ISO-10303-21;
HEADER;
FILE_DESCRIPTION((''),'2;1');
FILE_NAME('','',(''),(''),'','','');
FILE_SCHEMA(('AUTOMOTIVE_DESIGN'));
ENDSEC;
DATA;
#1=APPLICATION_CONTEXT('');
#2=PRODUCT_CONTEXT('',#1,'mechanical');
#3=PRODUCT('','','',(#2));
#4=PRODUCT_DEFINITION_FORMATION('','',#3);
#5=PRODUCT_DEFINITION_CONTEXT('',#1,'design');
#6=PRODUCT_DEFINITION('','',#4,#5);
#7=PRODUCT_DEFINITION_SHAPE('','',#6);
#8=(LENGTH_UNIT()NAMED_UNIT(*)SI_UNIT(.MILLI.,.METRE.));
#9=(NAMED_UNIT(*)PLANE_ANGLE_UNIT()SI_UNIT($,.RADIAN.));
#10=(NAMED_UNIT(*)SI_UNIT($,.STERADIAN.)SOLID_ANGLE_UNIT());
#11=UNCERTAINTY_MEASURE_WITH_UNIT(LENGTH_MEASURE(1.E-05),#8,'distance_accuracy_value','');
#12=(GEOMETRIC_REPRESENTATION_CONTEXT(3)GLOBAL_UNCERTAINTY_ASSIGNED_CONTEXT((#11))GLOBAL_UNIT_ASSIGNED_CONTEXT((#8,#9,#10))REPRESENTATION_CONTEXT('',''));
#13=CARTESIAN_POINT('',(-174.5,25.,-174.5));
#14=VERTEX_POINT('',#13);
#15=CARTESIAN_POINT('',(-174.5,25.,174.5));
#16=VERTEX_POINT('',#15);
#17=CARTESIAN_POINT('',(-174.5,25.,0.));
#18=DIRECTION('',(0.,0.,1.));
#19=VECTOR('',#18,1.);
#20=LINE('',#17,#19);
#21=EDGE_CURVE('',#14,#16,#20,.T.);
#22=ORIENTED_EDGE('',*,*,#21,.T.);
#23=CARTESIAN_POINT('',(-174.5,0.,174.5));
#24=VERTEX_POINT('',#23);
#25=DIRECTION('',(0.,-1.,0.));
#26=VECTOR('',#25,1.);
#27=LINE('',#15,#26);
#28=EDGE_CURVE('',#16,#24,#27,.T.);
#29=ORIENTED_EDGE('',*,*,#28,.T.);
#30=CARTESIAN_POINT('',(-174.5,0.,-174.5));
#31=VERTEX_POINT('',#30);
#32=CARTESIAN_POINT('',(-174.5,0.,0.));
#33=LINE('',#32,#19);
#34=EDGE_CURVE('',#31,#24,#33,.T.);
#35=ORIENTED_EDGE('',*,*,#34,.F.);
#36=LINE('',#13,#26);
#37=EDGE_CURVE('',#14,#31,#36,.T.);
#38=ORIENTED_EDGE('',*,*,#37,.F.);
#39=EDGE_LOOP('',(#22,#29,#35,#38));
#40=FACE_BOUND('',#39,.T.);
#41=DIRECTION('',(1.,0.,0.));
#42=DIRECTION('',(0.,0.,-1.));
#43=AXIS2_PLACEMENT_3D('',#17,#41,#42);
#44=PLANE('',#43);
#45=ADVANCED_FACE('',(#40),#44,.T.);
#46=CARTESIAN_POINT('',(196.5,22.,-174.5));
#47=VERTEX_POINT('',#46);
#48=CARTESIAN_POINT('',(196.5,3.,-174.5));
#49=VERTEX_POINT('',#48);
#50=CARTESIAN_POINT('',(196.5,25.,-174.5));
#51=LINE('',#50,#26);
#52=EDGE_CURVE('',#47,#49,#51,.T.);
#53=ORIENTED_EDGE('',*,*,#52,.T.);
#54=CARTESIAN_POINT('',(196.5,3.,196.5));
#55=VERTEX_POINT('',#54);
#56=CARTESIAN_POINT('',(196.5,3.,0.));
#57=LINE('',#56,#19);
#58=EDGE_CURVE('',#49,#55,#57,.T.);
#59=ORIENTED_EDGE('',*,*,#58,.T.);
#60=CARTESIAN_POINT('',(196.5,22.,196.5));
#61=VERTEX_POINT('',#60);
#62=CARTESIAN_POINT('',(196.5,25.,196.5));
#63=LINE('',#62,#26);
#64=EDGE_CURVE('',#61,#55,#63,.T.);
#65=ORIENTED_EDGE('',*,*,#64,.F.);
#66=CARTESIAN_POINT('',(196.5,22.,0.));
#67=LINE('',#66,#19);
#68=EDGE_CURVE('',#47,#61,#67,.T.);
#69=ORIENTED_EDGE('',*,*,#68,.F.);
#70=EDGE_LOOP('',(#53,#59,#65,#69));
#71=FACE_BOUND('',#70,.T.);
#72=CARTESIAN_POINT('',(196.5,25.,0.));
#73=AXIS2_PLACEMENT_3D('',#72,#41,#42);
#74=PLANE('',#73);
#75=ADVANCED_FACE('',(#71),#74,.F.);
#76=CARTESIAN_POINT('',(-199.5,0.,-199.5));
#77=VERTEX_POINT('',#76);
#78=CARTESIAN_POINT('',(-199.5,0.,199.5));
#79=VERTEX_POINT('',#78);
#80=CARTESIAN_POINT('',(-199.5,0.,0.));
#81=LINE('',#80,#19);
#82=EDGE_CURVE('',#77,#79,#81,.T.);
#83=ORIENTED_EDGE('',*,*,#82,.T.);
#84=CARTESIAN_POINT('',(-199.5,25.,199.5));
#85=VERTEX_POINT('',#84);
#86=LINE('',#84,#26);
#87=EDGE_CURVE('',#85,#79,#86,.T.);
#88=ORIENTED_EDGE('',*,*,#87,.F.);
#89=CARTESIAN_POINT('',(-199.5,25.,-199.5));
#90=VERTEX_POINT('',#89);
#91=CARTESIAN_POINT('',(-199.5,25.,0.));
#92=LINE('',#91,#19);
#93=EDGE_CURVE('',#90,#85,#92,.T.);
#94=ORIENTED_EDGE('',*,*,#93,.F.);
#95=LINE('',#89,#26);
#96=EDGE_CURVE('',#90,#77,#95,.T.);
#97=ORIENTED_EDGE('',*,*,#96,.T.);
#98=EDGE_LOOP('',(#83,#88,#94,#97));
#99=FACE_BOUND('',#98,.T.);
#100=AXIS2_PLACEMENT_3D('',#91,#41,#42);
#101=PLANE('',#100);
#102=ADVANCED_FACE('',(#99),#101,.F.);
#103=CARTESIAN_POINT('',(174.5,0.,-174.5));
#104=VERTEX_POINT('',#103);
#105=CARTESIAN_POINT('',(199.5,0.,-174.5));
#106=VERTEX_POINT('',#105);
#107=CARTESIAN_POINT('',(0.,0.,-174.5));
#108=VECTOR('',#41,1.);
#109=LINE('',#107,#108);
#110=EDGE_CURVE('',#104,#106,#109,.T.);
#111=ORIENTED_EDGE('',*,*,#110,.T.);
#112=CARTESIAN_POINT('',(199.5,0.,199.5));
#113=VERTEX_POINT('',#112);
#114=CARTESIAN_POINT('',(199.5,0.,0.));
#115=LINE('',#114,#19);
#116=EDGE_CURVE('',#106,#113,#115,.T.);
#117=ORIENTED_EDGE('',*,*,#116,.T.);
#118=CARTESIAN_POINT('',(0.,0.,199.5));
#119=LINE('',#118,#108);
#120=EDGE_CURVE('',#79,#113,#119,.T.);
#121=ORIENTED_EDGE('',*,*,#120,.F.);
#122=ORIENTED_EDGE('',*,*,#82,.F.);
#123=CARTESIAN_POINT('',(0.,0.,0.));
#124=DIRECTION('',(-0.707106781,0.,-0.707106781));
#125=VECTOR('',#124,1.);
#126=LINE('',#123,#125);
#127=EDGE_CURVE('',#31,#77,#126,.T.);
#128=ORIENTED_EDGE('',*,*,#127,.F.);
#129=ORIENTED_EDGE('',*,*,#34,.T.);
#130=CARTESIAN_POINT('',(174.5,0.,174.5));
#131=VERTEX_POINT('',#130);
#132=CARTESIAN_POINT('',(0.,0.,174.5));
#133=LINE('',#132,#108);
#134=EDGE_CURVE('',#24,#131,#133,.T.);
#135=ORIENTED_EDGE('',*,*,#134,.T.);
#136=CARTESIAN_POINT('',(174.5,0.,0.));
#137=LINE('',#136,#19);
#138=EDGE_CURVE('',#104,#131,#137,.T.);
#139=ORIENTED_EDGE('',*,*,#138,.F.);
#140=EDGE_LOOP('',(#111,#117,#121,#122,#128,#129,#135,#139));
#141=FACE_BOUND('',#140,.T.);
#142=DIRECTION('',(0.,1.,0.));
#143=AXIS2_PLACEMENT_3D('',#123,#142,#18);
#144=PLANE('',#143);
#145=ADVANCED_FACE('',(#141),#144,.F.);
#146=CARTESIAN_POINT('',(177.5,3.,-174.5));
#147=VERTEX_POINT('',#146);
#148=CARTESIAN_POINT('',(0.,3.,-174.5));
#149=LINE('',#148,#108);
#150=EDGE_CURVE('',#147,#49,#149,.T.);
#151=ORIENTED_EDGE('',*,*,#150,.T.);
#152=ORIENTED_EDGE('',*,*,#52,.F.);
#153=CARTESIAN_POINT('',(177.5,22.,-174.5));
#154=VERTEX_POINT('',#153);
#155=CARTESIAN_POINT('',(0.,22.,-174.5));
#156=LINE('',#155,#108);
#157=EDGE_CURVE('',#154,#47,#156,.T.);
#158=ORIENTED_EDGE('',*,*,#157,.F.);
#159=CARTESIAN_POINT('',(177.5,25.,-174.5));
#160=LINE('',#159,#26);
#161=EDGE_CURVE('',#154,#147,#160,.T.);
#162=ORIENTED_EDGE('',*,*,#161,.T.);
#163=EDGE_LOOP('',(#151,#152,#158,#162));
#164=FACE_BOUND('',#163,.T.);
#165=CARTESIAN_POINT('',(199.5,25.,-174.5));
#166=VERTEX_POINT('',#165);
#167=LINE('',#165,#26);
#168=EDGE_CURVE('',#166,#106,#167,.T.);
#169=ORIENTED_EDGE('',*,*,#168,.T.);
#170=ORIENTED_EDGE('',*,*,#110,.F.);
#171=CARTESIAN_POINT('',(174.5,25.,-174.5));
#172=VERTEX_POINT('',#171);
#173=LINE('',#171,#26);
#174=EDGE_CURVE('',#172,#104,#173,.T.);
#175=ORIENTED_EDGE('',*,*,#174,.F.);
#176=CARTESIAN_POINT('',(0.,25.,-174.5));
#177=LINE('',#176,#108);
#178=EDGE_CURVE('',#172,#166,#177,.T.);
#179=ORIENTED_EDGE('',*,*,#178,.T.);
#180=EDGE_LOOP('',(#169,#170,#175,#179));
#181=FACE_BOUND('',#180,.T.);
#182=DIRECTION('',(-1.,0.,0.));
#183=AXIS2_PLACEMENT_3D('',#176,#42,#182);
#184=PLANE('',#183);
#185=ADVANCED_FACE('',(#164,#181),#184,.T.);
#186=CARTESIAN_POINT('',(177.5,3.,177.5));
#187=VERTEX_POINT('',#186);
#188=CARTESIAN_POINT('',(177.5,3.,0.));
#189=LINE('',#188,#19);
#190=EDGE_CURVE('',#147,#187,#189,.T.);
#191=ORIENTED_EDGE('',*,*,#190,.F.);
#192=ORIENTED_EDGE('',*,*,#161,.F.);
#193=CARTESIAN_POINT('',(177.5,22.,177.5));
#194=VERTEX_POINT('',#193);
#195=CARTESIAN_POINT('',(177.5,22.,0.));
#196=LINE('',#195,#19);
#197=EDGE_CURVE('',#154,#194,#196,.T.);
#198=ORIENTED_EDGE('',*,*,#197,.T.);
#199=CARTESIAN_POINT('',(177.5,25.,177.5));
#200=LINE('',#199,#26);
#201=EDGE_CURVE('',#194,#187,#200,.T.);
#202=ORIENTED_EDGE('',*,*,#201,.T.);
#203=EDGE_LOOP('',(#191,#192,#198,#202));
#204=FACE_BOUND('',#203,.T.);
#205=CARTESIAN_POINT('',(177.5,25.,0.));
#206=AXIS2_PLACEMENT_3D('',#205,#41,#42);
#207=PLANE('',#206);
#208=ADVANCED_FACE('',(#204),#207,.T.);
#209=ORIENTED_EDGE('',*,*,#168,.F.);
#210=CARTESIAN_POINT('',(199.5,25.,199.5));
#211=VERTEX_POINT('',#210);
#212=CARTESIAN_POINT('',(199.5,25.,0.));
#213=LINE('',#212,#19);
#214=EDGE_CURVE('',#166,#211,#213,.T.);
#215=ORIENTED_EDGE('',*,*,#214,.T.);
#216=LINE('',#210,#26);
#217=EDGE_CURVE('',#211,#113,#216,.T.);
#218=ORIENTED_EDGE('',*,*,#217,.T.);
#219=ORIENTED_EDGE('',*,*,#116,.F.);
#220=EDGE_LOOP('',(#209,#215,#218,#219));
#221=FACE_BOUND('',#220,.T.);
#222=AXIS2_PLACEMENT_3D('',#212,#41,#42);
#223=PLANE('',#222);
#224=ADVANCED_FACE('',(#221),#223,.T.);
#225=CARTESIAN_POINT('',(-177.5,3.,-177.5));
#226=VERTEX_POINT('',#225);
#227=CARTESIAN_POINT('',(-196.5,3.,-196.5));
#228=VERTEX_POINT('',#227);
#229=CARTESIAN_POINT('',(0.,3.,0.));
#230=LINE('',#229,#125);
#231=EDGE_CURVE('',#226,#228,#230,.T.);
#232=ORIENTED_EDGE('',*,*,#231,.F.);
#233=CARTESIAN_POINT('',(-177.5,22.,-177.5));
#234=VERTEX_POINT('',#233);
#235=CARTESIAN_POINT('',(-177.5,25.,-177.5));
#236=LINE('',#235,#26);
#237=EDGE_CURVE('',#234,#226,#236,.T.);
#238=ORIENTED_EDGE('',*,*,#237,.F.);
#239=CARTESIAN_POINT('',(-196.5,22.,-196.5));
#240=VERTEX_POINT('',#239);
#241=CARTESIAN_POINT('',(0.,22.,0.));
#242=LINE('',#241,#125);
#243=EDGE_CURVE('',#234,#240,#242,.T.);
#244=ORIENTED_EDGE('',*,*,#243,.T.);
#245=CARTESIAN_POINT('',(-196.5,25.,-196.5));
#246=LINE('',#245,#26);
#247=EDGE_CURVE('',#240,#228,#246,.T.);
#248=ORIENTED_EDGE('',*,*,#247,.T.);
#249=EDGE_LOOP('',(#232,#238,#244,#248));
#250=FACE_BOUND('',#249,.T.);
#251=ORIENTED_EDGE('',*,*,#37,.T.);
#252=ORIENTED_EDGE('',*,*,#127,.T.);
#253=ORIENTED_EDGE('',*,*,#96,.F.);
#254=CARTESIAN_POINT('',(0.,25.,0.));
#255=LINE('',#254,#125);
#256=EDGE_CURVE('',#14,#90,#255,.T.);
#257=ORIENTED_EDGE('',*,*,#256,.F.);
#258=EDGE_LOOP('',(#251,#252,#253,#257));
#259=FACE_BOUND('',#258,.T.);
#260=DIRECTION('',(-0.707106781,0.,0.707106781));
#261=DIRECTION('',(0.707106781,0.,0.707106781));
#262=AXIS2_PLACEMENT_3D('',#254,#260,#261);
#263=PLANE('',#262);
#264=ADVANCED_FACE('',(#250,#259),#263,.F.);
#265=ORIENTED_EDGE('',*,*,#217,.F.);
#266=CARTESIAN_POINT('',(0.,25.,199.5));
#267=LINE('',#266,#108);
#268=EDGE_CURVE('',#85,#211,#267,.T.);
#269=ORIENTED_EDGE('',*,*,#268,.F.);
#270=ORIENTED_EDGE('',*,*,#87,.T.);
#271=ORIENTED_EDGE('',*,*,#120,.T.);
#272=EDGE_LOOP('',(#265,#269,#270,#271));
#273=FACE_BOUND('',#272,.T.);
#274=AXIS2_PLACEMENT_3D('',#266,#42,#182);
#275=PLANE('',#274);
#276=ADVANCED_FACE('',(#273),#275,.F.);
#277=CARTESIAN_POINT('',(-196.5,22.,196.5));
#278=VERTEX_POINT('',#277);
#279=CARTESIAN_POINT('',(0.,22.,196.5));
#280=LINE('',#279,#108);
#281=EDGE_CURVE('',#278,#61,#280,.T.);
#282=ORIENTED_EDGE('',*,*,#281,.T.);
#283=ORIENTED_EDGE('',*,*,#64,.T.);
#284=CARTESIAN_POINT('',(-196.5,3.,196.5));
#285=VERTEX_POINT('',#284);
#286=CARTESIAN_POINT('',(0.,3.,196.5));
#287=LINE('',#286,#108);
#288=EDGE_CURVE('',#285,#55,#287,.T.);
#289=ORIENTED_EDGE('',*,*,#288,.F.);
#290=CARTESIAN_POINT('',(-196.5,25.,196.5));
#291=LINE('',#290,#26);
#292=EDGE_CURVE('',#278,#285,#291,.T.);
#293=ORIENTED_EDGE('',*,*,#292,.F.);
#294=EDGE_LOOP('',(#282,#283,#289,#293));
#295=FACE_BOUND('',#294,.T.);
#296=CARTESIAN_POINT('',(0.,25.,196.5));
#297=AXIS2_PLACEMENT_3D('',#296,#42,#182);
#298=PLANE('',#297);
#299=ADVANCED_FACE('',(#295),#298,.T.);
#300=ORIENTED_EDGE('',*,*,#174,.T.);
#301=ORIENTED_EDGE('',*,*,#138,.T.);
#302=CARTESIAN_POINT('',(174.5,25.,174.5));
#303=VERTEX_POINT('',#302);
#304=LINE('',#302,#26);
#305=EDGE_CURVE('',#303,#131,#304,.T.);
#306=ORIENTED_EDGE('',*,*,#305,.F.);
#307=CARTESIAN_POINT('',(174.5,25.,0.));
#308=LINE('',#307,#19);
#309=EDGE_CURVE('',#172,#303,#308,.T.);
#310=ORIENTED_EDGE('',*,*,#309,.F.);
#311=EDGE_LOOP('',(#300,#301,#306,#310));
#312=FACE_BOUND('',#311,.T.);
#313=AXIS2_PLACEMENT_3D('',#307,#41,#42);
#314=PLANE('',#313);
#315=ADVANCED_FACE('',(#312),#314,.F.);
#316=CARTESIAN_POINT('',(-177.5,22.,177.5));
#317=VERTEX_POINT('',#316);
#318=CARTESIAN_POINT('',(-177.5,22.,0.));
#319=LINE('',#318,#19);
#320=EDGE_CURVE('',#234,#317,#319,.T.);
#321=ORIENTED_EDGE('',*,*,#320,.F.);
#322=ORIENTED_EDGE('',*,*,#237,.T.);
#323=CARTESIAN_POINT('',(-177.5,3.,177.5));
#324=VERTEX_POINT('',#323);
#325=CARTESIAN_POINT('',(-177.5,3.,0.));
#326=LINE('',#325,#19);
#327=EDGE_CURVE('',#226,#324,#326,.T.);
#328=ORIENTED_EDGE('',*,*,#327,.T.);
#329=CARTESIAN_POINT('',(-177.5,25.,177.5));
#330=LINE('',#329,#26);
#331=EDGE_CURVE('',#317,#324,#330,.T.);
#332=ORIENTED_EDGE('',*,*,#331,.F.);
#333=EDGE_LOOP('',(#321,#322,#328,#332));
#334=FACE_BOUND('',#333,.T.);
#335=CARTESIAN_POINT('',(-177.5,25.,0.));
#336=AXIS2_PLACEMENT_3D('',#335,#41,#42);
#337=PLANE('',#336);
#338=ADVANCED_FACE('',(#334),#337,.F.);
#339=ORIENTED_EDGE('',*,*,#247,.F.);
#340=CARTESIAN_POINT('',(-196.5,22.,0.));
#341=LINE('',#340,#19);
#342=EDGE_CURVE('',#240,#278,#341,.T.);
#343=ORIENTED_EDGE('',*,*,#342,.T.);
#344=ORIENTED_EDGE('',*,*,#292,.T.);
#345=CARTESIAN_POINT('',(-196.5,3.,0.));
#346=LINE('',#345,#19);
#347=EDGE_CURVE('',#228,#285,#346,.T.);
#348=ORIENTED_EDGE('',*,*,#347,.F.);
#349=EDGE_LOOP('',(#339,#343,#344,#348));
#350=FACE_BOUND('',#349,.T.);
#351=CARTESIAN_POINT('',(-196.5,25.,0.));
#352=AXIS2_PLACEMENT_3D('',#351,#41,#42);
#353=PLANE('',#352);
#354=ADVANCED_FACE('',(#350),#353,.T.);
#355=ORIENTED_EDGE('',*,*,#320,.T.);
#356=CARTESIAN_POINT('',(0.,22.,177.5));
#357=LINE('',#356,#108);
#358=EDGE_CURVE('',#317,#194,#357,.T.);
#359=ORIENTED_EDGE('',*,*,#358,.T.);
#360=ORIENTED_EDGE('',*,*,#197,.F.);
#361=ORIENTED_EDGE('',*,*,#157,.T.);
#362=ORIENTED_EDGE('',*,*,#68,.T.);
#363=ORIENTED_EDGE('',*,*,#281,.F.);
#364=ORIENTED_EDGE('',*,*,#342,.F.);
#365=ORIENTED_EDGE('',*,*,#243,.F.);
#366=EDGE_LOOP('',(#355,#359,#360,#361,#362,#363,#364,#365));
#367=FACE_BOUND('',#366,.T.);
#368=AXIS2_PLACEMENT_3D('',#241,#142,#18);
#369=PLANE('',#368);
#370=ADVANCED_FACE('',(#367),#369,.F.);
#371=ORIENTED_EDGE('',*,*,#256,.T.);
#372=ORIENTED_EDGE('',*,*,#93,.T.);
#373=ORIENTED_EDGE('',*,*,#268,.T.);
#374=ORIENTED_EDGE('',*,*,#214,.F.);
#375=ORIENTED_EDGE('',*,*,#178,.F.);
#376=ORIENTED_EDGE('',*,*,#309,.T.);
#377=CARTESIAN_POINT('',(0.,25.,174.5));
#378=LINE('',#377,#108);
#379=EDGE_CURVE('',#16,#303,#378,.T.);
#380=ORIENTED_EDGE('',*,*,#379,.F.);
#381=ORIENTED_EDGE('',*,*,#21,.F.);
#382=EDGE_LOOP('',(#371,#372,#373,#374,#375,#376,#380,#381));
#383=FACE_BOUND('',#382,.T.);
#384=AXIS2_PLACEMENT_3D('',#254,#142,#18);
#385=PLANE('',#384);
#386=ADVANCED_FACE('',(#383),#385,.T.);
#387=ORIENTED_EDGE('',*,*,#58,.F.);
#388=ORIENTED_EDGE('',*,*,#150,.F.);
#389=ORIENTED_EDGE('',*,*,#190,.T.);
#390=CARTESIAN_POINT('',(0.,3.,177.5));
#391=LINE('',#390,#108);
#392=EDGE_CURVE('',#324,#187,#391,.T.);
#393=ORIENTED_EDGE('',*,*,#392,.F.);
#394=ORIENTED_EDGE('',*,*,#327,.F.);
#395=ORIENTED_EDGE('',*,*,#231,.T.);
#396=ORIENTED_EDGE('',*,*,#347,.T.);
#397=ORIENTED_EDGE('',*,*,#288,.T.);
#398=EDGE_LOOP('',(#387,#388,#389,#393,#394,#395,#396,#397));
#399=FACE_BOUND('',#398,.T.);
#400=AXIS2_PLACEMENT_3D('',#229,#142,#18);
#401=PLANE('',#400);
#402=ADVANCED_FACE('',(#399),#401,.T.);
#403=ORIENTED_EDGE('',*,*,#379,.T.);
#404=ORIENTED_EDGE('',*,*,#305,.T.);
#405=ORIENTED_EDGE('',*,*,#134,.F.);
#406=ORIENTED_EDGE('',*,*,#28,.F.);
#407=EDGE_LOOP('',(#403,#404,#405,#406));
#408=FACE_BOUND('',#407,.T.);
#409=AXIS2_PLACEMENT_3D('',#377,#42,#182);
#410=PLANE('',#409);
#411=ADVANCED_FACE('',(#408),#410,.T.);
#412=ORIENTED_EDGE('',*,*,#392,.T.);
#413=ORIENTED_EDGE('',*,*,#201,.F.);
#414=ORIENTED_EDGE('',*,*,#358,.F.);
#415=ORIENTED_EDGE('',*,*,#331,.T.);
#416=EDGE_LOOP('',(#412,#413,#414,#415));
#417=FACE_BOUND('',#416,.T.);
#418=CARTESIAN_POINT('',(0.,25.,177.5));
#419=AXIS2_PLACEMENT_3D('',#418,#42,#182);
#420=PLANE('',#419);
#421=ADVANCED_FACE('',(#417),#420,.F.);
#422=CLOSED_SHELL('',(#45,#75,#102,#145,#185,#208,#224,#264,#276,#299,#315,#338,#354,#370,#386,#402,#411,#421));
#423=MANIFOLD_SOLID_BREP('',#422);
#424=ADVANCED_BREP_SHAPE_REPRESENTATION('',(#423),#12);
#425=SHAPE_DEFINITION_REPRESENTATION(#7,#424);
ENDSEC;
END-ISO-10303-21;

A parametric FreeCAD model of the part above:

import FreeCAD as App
import Part
import Sketcher
Q = App.Units.Quantity


def faces_at(feature, points):
    """Names of the faces that lie closest to the given points."""
    faces = feature.Shape.Faces
    near = lambda p: min(range(len(faces)), key=lambda i: faces[i].distToShape(Part.Vertex(*p))[0])
    return sorted({f"Face{near(p) + 1}" for p in points})

doc = App.newDocument("Part")
body = doc.addObject("PartDesign::Body", "Body")

sketch1 = body.newObject("Sketcher::SketchObject", "Sketch")
sketch1.AttachmentSupport = (doc.getObject("XZ_Plane"), [""])
sketch1.MapMode = "FlatFace"
sketch1.addGeometry(Part.LineSegment(App.Vector(-174, 174, 0), App.Vector(-174, -174, 0)), False)
sketch1.addGeometry(Part.LineSegment(App.Vector(-174, -174, 0), App.Vector(-200, -200, 0)), False)
sketch1.addGeometry(Part.LineSegment(App.Vector(-200, -200, 0), App.Vector(-200, 200, 0)), False)
sketch1.addGeometry(Part.LineSegment(App.Vector(-200, 200, 0), App.Vector(200, 200, 0)), False)
sketch1.addGeometry(Part.LineSegment(App.Vector(200, 200, 0), App.Vector(200, -174, 0)), False)
sketch1.addGeometry(Part.LineSegment(App.Vector(200, -174, 0), App.Vector(174, -174, 0)), False)
sketch1.addGeometry(Part.LineSegment(App.Vector(174, -174, 0), App.Vector(174, 174, 0)), False)
sketch1.addGeometry(Part.LineSegment(App.Vector(174, 174, 0), App.Vector(-174, 174, 0)), False)
sketch1.addConstraint(Sketcher.Constraint("Coincident", 0, 2, 1, 1))
sketch1.addConstraint(Sketcher.Constraint("Coincident", 1, 2, 2, 1))
sketch1.addConstraint(Sketcher.Constraint("Coincident", 2, 2, 3, 1))
sketch1.addConstraint(Sketcher.Constraint("Coincident", 3, 2, 4, 1))
sketch1.addConstraint(Sketcher.Constraint("Coincident", 4, 2, 5, 1))
sketch1.addConstraint(Sketcher.Constraint("Coincident", 5, 2, 6, 1))
sketch1.addConstraint(Sketcher.Constraint("Coincident", 6, 2, 7, 1))
sketch1.addConstraint(Sketcher.Constraint("Coincident", 7, 2, 0, 1))
sketch1.addConstraint(Sketcher.Constraint("Vertical", 0))
sketch1.addConstraint(Sketcher.Constraint("Vertical", 2))
sketch1.addConstraint(Sketcher.Constraint("Horizontal", 3))
sketch1.addConstraint(Sketcher.Constraint("Vertical", 4))
sketch1.addConstraint(Sketcher.Constraint("Horizontal", 5))
sketch1.addConstraint(Sketcher.Constraint("Vertical", 6))
sketch1.addConstraint(Sketcher.Constraint("Horizontal", 7))
sketch1.addConstraint(Sketcher.Constraint("Symmetric", 1, 2, 3, 2, -1, 1))
sketch1.addConstraint(Sketcher.Constraint("Symmetric", 0, 2, 6, 2, -1, 1))
sketch1.addConstraint(Sketcher.Constraint("Horizontal", 0, 2, 4, 2))
sketch1.addConstraint(Sketcher.Constraint("Equal", 7, 0))
sketch1.addConstraint(Sketcher.Constraint("Equal", 3, 2))
sketch1.addConstraint(Sketcher.Constraint("DistanceX", 3, 1, 3, 2, Q("399 mm")))
sketch1.addConstraint(Sketcher.Constraint("DistanceX", 5, 2, 5, 1, Q("25 mm")))
pad1 = body.newObject("PartDesign::Pad", "Pad")
pad1.Profile = sketch1
pad1.Length = 25
pad1.Reversed = True
doc.recompute()

thickness = body.newObject("PartDesign::Thickness", "Thickness")
thickness.Base = (pad1, faces_at(pad1, [(187, 12.5, -174.5), (-187, 12.5, -187)]))
thickness.Value = 3
thickness.Reversed = True
thickness.Join = "Intersection"

doc.recompute()
